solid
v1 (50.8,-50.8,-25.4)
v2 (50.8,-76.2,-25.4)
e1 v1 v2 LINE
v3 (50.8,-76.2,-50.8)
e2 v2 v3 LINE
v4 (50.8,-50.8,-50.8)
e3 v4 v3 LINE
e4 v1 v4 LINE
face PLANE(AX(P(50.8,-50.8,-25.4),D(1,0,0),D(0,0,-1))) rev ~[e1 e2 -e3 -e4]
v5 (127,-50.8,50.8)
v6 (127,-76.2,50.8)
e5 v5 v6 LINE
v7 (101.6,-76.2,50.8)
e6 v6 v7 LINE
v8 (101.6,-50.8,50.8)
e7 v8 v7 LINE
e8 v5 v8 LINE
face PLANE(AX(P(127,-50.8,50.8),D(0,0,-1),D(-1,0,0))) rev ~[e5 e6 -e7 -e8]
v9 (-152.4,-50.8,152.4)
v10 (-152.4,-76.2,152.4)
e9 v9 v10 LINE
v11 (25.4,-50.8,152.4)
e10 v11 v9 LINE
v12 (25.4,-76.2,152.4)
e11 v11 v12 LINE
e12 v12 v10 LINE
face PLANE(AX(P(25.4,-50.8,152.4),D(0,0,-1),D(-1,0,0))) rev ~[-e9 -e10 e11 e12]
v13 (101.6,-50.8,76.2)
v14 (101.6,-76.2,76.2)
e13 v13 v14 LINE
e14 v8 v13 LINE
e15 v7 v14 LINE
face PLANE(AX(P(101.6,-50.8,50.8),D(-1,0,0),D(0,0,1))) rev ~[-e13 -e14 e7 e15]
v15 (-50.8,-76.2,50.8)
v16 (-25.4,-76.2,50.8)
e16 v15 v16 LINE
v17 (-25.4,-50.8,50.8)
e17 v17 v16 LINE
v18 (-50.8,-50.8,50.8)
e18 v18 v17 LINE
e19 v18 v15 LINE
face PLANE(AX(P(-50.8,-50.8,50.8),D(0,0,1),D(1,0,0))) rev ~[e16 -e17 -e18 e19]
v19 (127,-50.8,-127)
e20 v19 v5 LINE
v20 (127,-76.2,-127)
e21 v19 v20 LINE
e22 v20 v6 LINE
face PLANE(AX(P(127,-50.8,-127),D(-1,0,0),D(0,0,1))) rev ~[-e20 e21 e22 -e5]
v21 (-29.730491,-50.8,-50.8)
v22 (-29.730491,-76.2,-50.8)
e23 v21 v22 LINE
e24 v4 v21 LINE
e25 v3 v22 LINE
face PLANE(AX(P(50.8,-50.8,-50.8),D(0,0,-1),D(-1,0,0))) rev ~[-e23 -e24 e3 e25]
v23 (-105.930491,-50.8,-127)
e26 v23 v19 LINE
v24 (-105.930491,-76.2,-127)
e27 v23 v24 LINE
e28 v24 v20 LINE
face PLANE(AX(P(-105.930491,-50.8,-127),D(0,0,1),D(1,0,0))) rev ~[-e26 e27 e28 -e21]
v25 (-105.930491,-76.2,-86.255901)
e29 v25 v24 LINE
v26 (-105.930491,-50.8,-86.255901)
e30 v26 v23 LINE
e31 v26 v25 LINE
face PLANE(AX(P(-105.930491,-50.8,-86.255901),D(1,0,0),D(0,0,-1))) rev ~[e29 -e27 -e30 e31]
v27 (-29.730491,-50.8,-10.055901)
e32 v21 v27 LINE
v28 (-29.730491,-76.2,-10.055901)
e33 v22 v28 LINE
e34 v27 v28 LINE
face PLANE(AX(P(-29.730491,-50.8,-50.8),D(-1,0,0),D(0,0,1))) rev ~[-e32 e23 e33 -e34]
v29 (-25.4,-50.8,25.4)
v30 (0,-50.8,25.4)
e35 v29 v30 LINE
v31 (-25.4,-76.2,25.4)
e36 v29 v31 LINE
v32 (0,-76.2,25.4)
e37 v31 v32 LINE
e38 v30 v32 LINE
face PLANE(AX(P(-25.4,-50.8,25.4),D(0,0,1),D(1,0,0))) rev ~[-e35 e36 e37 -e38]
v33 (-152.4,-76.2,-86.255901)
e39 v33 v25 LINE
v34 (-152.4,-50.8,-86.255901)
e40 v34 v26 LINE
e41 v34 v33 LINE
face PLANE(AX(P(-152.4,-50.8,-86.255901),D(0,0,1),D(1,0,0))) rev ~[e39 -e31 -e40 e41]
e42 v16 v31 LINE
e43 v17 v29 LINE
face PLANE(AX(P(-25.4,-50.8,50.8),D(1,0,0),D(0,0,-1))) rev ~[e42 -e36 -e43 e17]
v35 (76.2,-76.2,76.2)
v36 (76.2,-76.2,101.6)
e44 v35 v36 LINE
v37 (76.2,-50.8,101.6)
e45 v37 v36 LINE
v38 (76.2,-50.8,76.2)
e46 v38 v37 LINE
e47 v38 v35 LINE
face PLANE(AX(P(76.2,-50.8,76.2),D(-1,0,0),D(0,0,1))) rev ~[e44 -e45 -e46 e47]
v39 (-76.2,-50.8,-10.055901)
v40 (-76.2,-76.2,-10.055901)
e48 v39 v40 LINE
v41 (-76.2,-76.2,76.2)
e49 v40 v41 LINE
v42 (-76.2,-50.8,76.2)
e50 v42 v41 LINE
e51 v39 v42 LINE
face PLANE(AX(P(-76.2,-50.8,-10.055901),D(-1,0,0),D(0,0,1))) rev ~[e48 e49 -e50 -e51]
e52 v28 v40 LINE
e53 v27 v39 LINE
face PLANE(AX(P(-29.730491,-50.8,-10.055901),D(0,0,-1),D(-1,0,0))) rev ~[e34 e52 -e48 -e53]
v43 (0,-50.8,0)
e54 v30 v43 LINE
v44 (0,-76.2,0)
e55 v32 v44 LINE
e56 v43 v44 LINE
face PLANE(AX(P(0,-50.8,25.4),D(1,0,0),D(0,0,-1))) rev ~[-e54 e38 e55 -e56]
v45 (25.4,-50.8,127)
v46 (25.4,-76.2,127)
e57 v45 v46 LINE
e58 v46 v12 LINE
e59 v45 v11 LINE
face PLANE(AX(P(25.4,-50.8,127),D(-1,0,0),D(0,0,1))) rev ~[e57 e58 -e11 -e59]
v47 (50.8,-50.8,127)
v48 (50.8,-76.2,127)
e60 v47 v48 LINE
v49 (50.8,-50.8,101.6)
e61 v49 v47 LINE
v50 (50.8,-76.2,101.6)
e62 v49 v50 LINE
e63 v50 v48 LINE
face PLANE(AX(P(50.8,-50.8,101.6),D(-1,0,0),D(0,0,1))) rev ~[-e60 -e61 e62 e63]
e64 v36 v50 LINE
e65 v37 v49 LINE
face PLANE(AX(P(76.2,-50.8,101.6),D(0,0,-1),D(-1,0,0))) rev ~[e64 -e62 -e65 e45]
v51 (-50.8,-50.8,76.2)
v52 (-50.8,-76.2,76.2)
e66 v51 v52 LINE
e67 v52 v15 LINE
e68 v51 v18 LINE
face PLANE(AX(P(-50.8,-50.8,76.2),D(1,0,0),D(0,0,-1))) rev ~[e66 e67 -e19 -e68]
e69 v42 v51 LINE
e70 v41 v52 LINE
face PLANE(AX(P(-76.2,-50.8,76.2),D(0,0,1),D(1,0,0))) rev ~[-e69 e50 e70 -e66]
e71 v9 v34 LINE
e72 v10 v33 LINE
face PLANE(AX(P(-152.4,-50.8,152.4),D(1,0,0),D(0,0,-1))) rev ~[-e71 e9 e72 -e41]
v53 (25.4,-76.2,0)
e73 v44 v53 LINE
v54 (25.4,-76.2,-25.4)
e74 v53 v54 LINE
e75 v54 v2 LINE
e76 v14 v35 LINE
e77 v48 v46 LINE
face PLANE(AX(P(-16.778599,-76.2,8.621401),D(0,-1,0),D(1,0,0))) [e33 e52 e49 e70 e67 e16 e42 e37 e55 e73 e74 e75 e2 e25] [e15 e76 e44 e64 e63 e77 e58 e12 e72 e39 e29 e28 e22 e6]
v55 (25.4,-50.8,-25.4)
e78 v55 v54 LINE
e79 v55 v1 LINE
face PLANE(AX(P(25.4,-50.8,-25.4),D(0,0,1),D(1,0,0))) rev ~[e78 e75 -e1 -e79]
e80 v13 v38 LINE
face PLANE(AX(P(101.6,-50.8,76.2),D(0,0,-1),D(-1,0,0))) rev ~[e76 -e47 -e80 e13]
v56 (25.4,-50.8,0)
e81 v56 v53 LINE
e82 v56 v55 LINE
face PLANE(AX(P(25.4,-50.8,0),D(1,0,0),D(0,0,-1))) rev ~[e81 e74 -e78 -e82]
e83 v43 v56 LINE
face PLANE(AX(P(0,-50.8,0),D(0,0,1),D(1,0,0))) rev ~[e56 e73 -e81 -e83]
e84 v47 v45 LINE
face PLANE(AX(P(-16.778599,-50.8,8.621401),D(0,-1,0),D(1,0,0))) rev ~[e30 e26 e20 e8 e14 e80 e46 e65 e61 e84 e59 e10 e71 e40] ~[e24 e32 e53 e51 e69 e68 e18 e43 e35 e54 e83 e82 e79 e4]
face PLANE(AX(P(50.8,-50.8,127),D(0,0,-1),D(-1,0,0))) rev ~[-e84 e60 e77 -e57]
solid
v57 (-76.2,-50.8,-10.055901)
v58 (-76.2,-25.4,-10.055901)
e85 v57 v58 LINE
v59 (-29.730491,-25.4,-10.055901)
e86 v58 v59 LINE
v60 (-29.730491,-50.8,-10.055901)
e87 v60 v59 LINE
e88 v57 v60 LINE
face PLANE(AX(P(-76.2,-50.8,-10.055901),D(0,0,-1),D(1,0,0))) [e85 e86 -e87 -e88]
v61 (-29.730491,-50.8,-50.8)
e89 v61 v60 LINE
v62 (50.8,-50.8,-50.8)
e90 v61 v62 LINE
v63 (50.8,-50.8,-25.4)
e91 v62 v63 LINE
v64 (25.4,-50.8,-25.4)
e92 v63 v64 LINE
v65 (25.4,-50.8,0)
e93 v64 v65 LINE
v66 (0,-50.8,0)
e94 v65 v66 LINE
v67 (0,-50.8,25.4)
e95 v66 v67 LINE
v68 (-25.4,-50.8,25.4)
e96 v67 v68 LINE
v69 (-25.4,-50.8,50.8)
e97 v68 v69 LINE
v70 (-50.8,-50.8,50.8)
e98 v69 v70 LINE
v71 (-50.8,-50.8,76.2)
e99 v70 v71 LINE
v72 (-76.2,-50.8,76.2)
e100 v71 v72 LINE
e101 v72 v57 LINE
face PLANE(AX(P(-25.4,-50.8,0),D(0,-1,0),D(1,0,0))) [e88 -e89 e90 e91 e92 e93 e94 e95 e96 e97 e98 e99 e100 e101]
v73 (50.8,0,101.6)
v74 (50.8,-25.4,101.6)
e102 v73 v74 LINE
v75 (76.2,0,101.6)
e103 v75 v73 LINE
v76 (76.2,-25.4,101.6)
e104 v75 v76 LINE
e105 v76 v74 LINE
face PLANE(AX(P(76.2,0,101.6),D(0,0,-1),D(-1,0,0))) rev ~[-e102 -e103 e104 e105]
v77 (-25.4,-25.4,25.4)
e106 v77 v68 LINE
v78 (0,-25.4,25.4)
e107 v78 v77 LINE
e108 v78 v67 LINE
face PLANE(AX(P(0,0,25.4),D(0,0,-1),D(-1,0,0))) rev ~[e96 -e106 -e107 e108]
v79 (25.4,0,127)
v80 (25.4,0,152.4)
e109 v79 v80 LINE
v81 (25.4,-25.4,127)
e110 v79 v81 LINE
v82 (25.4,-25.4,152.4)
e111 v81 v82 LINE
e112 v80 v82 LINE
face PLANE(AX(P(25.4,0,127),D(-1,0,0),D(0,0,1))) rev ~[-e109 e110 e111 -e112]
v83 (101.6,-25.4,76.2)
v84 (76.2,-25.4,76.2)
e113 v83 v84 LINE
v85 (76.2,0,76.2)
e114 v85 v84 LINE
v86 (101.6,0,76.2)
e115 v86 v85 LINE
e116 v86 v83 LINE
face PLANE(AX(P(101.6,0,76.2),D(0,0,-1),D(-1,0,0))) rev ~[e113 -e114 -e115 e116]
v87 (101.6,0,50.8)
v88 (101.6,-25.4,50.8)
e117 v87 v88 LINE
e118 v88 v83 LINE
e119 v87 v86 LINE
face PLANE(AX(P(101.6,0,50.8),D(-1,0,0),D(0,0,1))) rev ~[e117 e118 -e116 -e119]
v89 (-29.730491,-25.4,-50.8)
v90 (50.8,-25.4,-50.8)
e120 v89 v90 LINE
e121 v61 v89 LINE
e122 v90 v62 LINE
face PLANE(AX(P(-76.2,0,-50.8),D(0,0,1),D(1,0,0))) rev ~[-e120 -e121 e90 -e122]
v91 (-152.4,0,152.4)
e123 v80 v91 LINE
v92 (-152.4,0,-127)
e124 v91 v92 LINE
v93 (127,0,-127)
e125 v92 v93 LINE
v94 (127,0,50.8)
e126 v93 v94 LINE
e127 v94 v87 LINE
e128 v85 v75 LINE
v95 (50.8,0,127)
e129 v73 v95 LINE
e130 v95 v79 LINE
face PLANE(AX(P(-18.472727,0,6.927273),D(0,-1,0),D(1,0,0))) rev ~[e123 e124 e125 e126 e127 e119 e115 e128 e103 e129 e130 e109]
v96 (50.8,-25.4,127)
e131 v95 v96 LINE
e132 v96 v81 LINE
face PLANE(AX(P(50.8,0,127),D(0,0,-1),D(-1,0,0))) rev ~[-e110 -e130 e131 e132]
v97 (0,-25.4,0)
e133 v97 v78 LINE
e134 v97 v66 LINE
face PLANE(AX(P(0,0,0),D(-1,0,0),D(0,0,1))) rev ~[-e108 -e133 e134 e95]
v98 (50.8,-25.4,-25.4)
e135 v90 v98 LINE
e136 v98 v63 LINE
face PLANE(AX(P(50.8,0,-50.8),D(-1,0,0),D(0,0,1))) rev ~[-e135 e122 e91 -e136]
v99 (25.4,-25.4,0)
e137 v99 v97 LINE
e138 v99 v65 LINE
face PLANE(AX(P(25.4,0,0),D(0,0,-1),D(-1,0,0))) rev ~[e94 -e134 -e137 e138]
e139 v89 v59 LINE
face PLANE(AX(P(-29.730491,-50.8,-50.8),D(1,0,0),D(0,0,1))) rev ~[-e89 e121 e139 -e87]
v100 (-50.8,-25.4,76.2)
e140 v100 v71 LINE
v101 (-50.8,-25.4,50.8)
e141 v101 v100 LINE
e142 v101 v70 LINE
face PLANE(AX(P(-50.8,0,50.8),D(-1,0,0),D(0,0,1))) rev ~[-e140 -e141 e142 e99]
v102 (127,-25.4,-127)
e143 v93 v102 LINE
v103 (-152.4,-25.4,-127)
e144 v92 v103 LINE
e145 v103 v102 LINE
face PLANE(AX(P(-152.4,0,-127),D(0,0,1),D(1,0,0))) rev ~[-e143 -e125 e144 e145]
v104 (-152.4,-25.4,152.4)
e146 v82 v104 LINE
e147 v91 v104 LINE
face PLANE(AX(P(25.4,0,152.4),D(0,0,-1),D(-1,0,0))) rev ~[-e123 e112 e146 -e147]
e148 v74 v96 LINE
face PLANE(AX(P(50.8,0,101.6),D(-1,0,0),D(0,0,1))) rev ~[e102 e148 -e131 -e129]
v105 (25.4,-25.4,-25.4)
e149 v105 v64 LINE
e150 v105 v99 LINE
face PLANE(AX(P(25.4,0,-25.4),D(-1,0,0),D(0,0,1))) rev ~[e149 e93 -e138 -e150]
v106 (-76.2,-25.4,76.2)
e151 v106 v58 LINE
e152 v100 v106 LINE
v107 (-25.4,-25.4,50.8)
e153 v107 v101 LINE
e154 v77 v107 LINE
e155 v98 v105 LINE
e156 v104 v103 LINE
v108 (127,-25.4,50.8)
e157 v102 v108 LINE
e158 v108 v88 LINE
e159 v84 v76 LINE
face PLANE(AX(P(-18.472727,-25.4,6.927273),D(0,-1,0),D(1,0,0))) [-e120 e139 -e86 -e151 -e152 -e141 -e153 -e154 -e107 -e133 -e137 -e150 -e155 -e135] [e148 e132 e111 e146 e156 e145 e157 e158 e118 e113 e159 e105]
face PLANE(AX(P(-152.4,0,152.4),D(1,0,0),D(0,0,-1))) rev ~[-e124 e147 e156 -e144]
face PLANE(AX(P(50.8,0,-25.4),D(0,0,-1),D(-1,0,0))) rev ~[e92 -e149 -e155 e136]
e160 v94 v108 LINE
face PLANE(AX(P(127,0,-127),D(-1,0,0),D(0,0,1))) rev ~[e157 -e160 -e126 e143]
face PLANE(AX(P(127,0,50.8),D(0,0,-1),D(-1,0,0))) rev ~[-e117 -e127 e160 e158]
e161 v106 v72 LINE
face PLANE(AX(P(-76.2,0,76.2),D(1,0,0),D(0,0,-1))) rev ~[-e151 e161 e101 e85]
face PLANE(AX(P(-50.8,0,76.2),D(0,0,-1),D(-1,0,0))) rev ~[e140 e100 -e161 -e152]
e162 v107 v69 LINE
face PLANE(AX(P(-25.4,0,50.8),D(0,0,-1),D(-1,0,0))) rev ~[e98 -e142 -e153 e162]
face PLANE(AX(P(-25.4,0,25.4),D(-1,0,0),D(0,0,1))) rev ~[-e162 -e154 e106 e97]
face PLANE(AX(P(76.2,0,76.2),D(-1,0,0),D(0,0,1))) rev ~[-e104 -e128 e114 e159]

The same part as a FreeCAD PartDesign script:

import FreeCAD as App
import Part
import Sketcher
from FreeCAD import Vector
Q = App.Units.Quantity


def add_polygon(sketch, points):
    """Adds a closed chain of lines whose ends are joined by coincident constraints."""
    first, n = sketch.GeometryCount, len(points)
    for a, b in zip(points, points[1:] + points[:1]):
        sketch.addGeometry(Part.LineSegment(App.Vector(*a, 0), App.Vector(*b, 0)), False)
    for i in range(n):
        sketch.addConstraint(Sketcher.Constraint("Coincident", first + i, 2, first + (i + 1) % n, 1))

doc = App.newDocument("Part")
body = doc.addObject("PartDesign::Body", "Body")

# Sketch on XZ plane
sketch1 = body.newObject("Sketcher::SketchObject", "Sketch")
sketch1.AttachmentSupport = (doc.getObject("XZ_Plane"), [""])
sketch1.MapMode = "FlatFace"
add_polygon(sketch1, [(-51, 76), (-76, 76), (-76, -51), (51, -51), (51, -25), (25, -25), (25, 0), (0, 0), (0, 25), (-25, 25), (-25, 51), (-51, 51)])  # lines 0-11
sketch1.addConstraint([
    Sketcher.Constraint("Horizontal", 0),
    Sketcher.Constraint("Vertical", 1),
    Sketcher.Constraint("Horizontal", 2),
    Sketcher.Constraint("Vertical", 3),
    Sketcher.Constraint("Horizontal", 4),
    Sketcher.Constraint("Vertical", 5),
    Sketcher.Constraint("Horizontal", 6),
    Sketcher.Constraint("Vertical", 7),
    Sketcher.Constraint("Horizontal", 8),
    Sketcher.Constraint("Vertical", 9),
    Sketcher.Constraint("Horizontal", 10),
    Sketcher.Constraint("Vertical", 11),
    Sketcher.Constraint("Coincident", 6, 2, -1, 1),
    Sketcher.Constraint("Symmetric", 4, 2, 8, 2, -1, 1),
    Sketcher.Constraint("Symmetric", 2, 2, 10, 2, -1, 1),
    Sketcher.Constraint("Equal", 0, 4),
    Sketcher.Constraint("Equal", 4, 6),
    Sketcher.Constraint("Equal", 2, 1),
    Sketcher.Constraint("Equal", 10, 3),
    Sketcher.Constraint("Equal", 3, 5),
    Sketcher.Constraint("DistanceX", 0, 2, 0, 1, Q("1 in")),
])
pad1 = body.newObject("PartDesign::Pad", "Pad")
pad1.Profile = sketch1
pad1.Length = Q("2 in")

# Sketch on XZ plane
sketch2 = body.newObject("Sketcher::SketchObject", "Sketch001")
sketch2.AttachmentSupport = (doc.getObject("XZ_Plane"), [""])
sketch2.MapMode = "FlatFace"
sketch2.AttachmentOffset = App.Placement(Vector(0, 0, 2 * 25.4), App.Rotation())
add_polygon(sketch2, [(-76, -10), (-76, -51), (-30, -51), (-30, -10)])  # lines 0-3
sketch2.addConstraint([
    Sketcher.Constraint("Vertical", 0),
    Sketcher.Constraint("Horizontal", 1),
    Sketcher.Constraint("Vertical", 2),
    Sketcher.Constraint("Horizontal", 3),
    Sketcher.Constraint("DistanceX", 0, 2, -1, 1, Q("3 in")),
    Sketcher.Constraint("DistanceY", 0, 2, -1, 1, Q("2 in")),
    Sketcher.Constraint("DistanceY", 0, 2, 0, 1, 40.744099),
    Sketcher.Constraint("DistanceX", 1, 1, 1, 2, 46.469509),
])
pocket1 = body.newObject("PartDesign::Pocket", "Pocket")
pocket1.Profile = sketch2
pocket1.Length = Q("1 in")

# Sketch on XZ plane
sketch3 = body.newObject("Sketcher::SketchObject", "Sketch002")
sketch3.AttachmentSupport = (doc.getObject("XZ_Plane"), [""])
sketch3.MapMode = "FlatFace"
add_polygon(sketch3, [(76, 102), (51, 102), (51, 127), (25, 127), (25, 152), (-152, 152), (-152, -127), (127, -127), (127, 51), (102, 51), (102, 76), (76, 76)])  # lines 0-11
sketch3.addConstraint([
    Sketcher.Constraint("Horizontal", 0),
    Sketcher.Constraint("Vertical", 1),
    Sketcher.Constraint("Horizontal", 2),
    Sketcher.Constraint("Vertical", 3),
    Sketcher.Constraint("Horizontal", 4),
    Sketcher.Constraint("Vertical", 5),
    Sketcher.Constraint("Horizontal", 6),
    Sketcher.Constraint("Vertical", 7),
    Sketcher.Constraint("Horizontal", 8),
    Sketcher.Constraint("Vertical", 9),
    Sketcher.Constraint("Horizontal", 10),
    Sketcher.Constraint("Vertical", 11),
    Sketcher.Constraint("Equal", 0, 2),
    Sketcher.Constraint("Equal", 2, 8),
    Sketcher.Constraint("Equal", 8, 10),
    Sketcher.Constraint("Equal", 10, 1),
    Sketcher.Constraint("Equal", 1, 3),
    Sketcher.Constraint("Equal", 6, 5),
    Sketcher.Constraint("Equal", 4, 7),
    Sketcher.Constraint("Equal", 3, 9),
    Sketcher.Constraint("DistanceX", 0, 2, 0, 1, Q("1 in")),
    Sketcher.Constraint("DistanceX", 4, 2, 4, 1, Q("7 in")),
    Sketcher.Constraint("DistanceX", -1, 1, 0, 2, Q("2 in")),
    Sketcher.Constraint("DistanceY", -1, 1, 0, 2, Q("4 in")),
])
pad2 = body.newObject("PartDesign::Pad", "Pad001")
pad2.Profile = sketch3
pad2.Length = Q("1 in")
body2 = doc.addObject("PartDesign::Body", "Body001")

# Sketch on XZ plane
sketch4 = body2.newObject("Sketcher::SketchObject", "Sketch003")
sketch4.AttachmentSupport = (doc.getObject("XZ_Plane001"), [""])
sketch4.MapMode = "FlatFace"
sketch4.AttachmentOffset = App.Placement(Vector(0, 0, 2 * 25.4), App.Rotation())
add_polygon(sketch4, [(25, 152), (-152, 152), (-152, -86), (-106, -86), (-106, -127), (127, -127), (127, 51), (102, 51), (102, 76), (76, 76), (76, 102), (51, 102), (51, 127), (25, 127)])  # lines 0-13
add_polygon(sketch4, [(-76, 76), (-51, 76), (-51, 51), (-25, 51), (-25, 25), (0, 25), (0, 0), (25, 0), (25, -25), (51, -25), (51, -51), (-30, -51), (-30, -10), (-76, -10)])  # lines 14-27
sketch4.addConstraint([
    Sketcher.Constraint("Horizontal", 0),
    Sketcher.Constraint("Vertical", 1),
    Sketcher.Constraint("Horizontal", 2),
    Sketcher.Constraint("Vertical", 3),
    Sketcher.Constraint("Horizontal", 4),
    Sketcher.Constraint("Vertical", 5),
    Sketcher.Constraint("Horizontal", 6),
    Sketcher.Constraint("Vertical", 7),
    Sketcher.Constraint("Horizontal", 8),
    Sketcher.Constraint("Vertical", 9),
    Sketcher.Constraint("Horizontal", 10),
    Sketcher.Constraint("Vertical", 11),
    Sketcher.Constraint("Horizontal", 12),
    Sketcher.Constraint("Vertical", 13),
    Sketcher.Constraint("Horizontal", 14),
    Sketcher.Constraint("Vertical", 15),
    Sketcher.Constraint("Horizontal", 16),
    Sketcher.Constraint("Vertical", 17),
    Sketcher.Constraint("Horizontal", 18),
    Sketcher.Constraint("Vertical", 19),
    Sketcher.Constraint("Horizontal", 20),
    Sketcher.Constraint("Vertical", 21),
    Sketcher.Constraint("Horizontal", 22),
    Sketcher.Constraint("Vertical", 23),
    Sketcher.Constraint("Horizontal", 24),
    Sketcher.Constraint("Vertical", 25),
    Sketcher.Constraint("Horizontal", 26),
    Sketcher.Constraint("Vertical", 27),
    Sketcher.Constraint("Coincident", 19, 2, -1, 1),
    Sketcher.Constraint("Symmetric", 17, 2, 21, 2, -1, 1),
    Sketcher.Constraint("Symmetric", 15, 2, 23, 2, -1, 1),
    Sketcher.Constraint("Symmetric", 8, 2, 27, 2, -2),
    Sketcher.Constraint("Horizontal", 6, 2, 15, 2),
    Sketcher.Constraint("Vertical", 13, 2, 20, 2),
    Sketcher.Constraint("Vertical", 11, 2, 22, 2),
    Sketcher.Constraint("Equal", 6, 8),
    Sketcher.Constraint("Equal", 8, 10),
    Sketcher.Constraint("Equal", 10, 12),
    Sketcher.Constraint("Equal", 16, 18),
    Sketcher.Constraint("Equal", 2, 26),
    Sketcher.Constraint("Equal", 0, 5),
    Sketcher.Constraint("Equal", 22, 7),
    Sketcher.Constraint("Equal", 7, 9),
    Sketcher.Constraint("Equal", 9, 11),
    Sketcher.Constraint("Equal", 11, 13),
    Sketcher.Constraint("Equal", 15, 17),
    Sketcher.Constraint("Equal", 17, 19),
    Sketcher.Constraint("Equal", 3, 25),
    Sketcher.Constraint("DistanceX", 0, 2, 0, 1, Q("7 in")),
    Sketcher.Constraint("DistanceX", 6, 2, 6, 1, Q("1 in")),
    Sketcher.Constraint("DistanceY", 1, 2, 1, 1, 238.655901),
    Sketcher.Constraint("DistanceX", 2, 1, 2, 2, 46.469509),
])
pad3 = body2.newObject("PartDesign::Pad", "Pad002")
pad3.Profile = sketch4
pad3.Length = Q("1 in")

doc.recompute()
